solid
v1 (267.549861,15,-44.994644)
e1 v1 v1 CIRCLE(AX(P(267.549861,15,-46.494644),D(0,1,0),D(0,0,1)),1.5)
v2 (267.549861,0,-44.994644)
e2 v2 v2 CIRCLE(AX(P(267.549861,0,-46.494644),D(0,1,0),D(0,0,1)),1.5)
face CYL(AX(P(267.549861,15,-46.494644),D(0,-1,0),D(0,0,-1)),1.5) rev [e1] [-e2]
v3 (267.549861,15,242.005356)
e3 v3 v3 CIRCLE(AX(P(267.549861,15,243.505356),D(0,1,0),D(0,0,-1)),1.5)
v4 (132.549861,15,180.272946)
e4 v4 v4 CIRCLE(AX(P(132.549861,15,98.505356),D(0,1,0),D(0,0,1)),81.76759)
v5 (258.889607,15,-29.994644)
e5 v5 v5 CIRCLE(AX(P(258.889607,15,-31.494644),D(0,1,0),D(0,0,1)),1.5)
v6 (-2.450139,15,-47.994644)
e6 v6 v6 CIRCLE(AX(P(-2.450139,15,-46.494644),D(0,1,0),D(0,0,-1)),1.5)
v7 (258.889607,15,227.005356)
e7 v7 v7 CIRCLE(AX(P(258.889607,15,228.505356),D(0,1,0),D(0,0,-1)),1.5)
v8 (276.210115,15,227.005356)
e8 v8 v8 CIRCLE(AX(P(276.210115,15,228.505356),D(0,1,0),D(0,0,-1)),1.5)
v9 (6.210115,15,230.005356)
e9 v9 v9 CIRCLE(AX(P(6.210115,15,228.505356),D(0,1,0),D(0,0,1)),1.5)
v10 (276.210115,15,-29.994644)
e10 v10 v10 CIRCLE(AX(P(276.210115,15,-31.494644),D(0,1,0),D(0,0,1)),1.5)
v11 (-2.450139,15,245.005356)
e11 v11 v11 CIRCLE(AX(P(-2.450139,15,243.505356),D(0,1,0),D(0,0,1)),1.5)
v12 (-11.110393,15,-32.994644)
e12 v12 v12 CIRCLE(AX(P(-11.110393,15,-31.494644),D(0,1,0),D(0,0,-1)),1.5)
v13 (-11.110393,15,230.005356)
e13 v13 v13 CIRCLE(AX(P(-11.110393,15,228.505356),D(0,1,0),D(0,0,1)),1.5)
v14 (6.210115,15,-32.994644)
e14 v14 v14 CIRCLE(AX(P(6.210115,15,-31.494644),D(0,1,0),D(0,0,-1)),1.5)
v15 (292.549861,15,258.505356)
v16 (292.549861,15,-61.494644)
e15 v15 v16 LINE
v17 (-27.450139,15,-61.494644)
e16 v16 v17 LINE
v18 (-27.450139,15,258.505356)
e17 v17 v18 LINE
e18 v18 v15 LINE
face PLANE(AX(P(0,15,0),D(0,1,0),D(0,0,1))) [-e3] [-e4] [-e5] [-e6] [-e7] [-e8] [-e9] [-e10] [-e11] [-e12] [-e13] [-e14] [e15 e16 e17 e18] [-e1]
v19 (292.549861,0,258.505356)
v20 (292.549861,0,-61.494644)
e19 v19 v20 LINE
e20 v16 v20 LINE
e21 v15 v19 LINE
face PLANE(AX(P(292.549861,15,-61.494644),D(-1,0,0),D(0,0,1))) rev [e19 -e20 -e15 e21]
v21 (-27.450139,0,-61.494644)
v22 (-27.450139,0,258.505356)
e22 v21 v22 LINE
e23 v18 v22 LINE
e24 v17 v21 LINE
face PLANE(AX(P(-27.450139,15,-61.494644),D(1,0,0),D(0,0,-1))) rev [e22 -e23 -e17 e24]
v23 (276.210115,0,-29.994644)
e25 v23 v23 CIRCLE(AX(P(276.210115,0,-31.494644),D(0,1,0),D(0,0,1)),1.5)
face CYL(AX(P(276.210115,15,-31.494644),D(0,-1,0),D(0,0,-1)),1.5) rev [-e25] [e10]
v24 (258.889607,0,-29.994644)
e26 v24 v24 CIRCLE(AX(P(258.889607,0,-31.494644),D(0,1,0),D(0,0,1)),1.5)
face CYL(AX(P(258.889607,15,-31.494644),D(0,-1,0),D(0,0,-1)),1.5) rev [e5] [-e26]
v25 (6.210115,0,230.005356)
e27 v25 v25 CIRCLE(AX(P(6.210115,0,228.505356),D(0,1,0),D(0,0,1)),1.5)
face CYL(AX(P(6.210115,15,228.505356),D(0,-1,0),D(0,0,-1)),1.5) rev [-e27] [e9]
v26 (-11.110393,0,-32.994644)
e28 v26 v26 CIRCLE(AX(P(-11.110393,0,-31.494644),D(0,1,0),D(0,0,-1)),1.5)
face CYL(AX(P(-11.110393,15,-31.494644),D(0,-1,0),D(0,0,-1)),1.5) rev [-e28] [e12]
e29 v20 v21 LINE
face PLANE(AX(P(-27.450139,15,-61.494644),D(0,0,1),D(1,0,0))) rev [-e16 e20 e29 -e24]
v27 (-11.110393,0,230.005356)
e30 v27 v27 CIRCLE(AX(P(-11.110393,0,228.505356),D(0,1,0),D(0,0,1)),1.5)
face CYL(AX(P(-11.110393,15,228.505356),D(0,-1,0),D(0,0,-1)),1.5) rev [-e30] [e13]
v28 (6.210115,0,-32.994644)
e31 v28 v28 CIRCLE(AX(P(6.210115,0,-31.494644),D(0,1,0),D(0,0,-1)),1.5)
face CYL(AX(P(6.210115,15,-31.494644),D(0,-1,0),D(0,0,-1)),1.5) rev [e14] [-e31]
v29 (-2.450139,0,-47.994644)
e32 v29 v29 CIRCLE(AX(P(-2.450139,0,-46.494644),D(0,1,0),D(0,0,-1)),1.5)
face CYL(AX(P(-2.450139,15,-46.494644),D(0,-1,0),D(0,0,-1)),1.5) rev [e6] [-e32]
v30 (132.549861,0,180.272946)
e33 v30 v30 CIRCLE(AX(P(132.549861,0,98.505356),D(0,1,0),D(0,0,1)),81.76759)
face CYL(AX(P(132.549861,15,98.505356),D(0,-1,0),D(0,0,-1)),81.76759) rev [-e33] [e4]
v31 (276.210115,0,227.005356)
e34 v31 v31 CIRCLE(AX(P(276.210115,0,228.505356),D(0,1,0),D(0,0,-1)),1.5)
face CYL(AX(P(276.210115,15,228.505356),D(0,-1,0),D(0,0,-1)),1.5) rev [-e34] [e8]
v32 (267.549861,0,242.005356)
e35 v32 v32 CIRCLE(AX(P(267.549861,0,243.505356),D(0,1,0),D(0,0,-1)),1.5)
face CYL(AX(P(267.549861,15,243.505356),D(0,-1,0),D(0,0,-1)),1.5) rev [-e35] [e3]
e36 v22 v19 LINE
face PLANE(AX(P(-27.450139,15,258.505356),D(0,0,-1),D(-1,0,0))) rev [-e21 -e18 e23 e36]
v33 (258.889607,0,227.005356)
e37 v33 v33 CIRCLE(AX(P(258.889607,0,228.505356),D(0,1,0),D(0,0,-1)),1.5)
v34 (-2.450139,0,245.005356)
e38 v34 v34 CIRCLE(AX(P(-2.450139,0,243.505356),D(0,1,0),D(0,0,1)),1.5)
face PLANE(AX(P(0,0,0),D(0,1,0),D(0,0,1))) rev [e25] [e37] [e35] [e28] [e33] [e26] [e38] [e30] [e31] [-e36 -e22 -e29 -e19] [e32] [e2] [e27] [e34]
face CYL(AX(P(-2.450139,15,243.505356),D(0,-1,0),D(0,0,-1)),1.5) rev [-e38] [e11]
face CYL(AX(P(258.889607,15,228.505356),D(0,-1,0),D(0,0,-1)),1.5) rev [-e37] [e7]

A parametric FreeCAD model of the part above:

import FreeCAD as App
import Part
import Sketcher

V = App.Vector


def add_polygon(sketch, points):
    """Adds a closed chain of lines whose ends are joined by coincident constraints."""
    first, n = sketch.GeometryCount, len(points)
    for a, b in zip(points, points[1:] + points[:1]):
        sketch.addGeometry(Part.LineSegment(App.Vector(*a, 0), App.Vector(*b, 0)), False)
    for i in range(n):
        sketch.addConstraint(Sketcher.Constraint("Coincident", first + i, 2, first + (i + 1) % n, 1))

doc = App.newDocument("Part")
body = doc.addObject("PartDesign::Body", "Body")

# Sketch on XZ plane
sketch1 = body.newObject("Sketcher::SketchObject", "Sketch")
sketch1.AttachmentSupport = (doc.getObject("XZ_Plane"), [""])
sketch1.MapMode = "FlatFace"
add_polygon(sketch1, [(-27.450139, -61.494644), (-27.450139, 258.505356), (292.549861, 258.505356), (292.549861, -61.494644)])  # lines 0-3
sketch1.addGeometry(Part.Circle(V(-2.450139, 243.505356, 0), V(0, 0, 1), 1.5), False)  # 4
sketch1.addGeometry(Part.Circle(V(-11.110393, 228.505356, 0), V(0, 0, 1), 1.5), False)  # 5
sketch1.addGeometry(Part.Circle(V(6.210115, 228.505356, 0), V(0, 0, 1), 1.5), False)  # 6
sketch1.addGeometry(Part.Circle(V(258.889607, 228.505356, 0), V(0, 0, 1), 1.5), False)  # 7
sketch1.addGeometry(Part.Circle(V(267.549861, 243.505356, 0), V(0, 0, 1), 1.5), False)  # 8
sketch1.addGeometry(Part.Circle(V(276.210115, 228.505356, 0), V(0, 0, 1), 1.5), False)  # 9
sketch1.addGeometry(Part.Circle(V(-11.110393, -31.494644, 0), V(0, 0, 1), 1.5), False)  # 10
sketch1.addGeometry(Part.Circle(V(-2.450139, -46.494644, 0), V(0, 0, 1), 1.5), False)  # 11
sketch1.addGeometry(Part.Circle(V(6.210115, -31.494644, 0), V(0, 0, 1), 1.5), False)  # 12
sketch1.addGeometry(Part.Circle(V(132.549861, 98.505356, 0), V(0, 0, 1), 81.76759), False)  # 13
sketch1.addGeometry(Part.Circle(V(258.889607, -31.494644, 0), V(0, 0, 1), 1.5), False)  # 14
sketch1.addGeometry(Part.Circle(V(276.210115, -31.494644, 0), V(0, 0, 1), 1.5), False)  # 15
sketch1.addGeometry(Part.Circle(V(267.549861, -46.494644, 0), V(0, 0, 1), 1.5), False)  # 16
sketch1.addConstraint(Sketcher.Constraint("Vertical", 0))
sketch1.addConstraint(Sketcher.Constraint("Horizontal", 1))
sketch1.addConstraint(Sketcher.Constraint("Vertical", 2))
sketch1.addConstraint(Sketcher.Constraint("Horizontal", 3))
sketch1.addConstraint(Sketcher.Constraint("Equal", 4, 5))
sketch1.addConstraint(Sketcher.Constraint("Equal", 5, 6))
sketch1.addConstraint(Sketcher.Constraint("Equal", 6, 7))
sketch1.addConstraint(Sketcher.Constraint("Equal", 7, 8))
sketch1.addConstraint(Sketcher.Constraint("Equal", 8, 9))
sketch1.addConstraint(Sketcher.Constraint("Equal", 9, 10))
sketch1.addConstraint(Sketcher.Constraint("Equal", 10, 11))
sketch1.addConstraint(Sketcher.Constraint("Equal", 11, 12))
sketch1.addConstraint(Sketcher.Constraint("Equal", 12, 14))
sketch1.addConstraint(Sketcher.Constraint("Equal", 14, 15))
sketch1.addConstraint(Sketcher.Constraint("Equal", 15, 16))
sketch1.addConstraint(Sketcher.Constraint("Horizontal", 5, 3, 6, 3))
sketch1.addConstraint(Sketcher.Constraint("Horizontal", 6, 3, 7, 3))
sketch1.addConstraint(Sketcher.Constraint("Horizontal", 4, 3, 8, 3))
sketch1.addConstraint(Sketcher.Constraint("Horizontal", 7, 3, 9, 3))
sketch1.addConstraint(Sketcher.Constraint("Horizontal", 10, 3, 12, 3))
sketch1.addConstraint(Sketcher.Constraint("Horizontal", 12, 3, 14, 3))
sketch1.addConstraint(Sketcher.Constraint("Horizontal", 14, 3, 15, 3))
sketch1.addConstraint(Sketcher.Constraint("Horizontal", 11, 3, 16, 3))
sketch1.addConstraint(Sketcher.Constraint("Vertical", 5, 3, 10, 3))
sketch1.addConstraint(Sketcher.Constraint("Vertical", 4, 3, 11, 3))
sketch1.addConstraint(Sketcher.Constraint("Vertical", 6, 3, 12, 3))
sketch1.addConstraint(Sketcher.Constraint("Vertical", 7, 3, 14, 3))
sketch1.addConstraint(Sketcher.Constraint("Vertical", 9, 3, 15, 3))
sketch1.addConstraint(Sketcher.Constraint("Vertical", 8, 3, 16, 3))
sketch1.addConstraint(Sketcher.Constraint("Equal", 3, 0))
sketch1.addConstraint(Sketcher.Constraint("Diameter", 4, 3.0))
sketch1.addConstraint(Sketcher.Constraint("DistanceX", 1, 1, 1, 2, 320.0))
sketch1.addConstraint(Sketcher.Constraint("DistanceY", 5, 3, 4, 3, 15.0))
sketch1.addConstraint(Sketcher.Constraint("DistanceX", 5, 3, 7, 3, 270.0))
sketch1.addConstraint(Sketcher.Constraint("DistanceX", 4, 3, 8, 3, 270.0))
sketch1.addConstraint(Sketcher.Constraint("DistanceX", 6, 3, 9, 3, 270.0))
sketch1.addConstraint(Sketcher.Constraint("DistanceY", 10, 3, 5, 3, 260.0))
sketch1.addConstraint(Sketcher.Constraint("DistanceY", 11, 3, 10, 3, 15.0))
sketch1.addConstraint(Sketcher.Constraint("DistanceY", 13, 3, 7, 3, 130.0))
sketch1.addConstraint(Sketcher.Constraint("DistanceX", 13, 3, 16, 3, 135.0))
sketch1.addConstraint(Sketcher.Constraint("DistanceX", 0, 2, 4, 3, 25.0))
sketch1.addConstraint(Sketcher.Constraint("DistanceY", 4, 3, 0, 2, 15.0))
sketch1.addConstraint(Sketcher.Constraint("Diameter", 13, 163.53518))
sketch1.addConstraint(Sketcher.Constraint("DistanceX", 4, 3, -1, 1, 2.450139))
sketch1.addConstraint(Sketcher.Constraint("DistanceX", 5, 3, 6, 3, 17.320508))
sketch1.addConstraint(Sketcher.Constraint("DistanceY", -1, 1, 4, 3, 243.505356))
sketch1.addConstraint(Sketcher.Constraint("DistanceX", 5, 3, -1, 1, 11.110393))
pad1 = body.newObject("PartDesign::Pad", "Pad")
pad1.Profile = sketch1
pad1.Length = 15
pad1.Reversed = True

doc.recompute()
